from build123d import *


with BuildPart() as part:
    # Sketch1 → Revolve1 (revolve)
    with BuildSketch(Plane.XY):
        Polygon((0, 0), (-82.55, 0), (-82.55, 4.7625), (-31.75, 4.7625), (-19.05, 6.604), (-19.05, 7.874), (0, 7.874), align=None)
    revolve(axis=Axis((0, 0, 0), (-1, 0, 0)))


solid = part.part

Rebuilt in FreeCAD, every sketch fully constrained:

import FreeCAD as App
import Part
import Sketcher
from FreeCAD import Vector
Q = App.Units.Quantity

doc = App.newDocument("Part")
body = doc.addObject("PartDesign::Body", "Body")

# Sketch on XY plane
sketch1 = body.newObject("Sketcher::SketchObject", "Sketch")
sketch1.AttachmentSupport = (doc.getObject("XY_Plane"), [""])
sketch1.MapMode = "FlatFace"
sketch1.addGeometry(Part.LineSegment(Vector(-82.5, 0, 0), Vector(0, 0, 0)), False)
sketch1.addGeometry(Part.LineSegment(Vector(0, 0, 0), Vector(0, 7.9, 0)), False)
sketch1.addGeometry(Part.LineSegment(Vector(0, 7.9, 0), Vector(-19.1, 7.9, 0)), False)
sketch1.addGeometry(Part.LineSegment(Vector(-19.1, 7.9, 0), Vector(-19.1, 6.6, 0)), False)
sketch1.addGeometry(Part.LineSegment(Vector(-19.1, 6.6, 0), Vector(-31.8, 4.8, 0)), False)
sketch1.addGeometry(Part.LineSegment(Vector(-31.8, 4.8, 0), Vector(-82.5, 4.8, 0)), False)
sketch1.addGeometry(Part.LineSegment(Vector(-82.5, 4.8, 0), Vector(-82.5, 0, 0)), False)
sketch1.addConstraint(Sketcher.Constraint("Coincident", 0, 2, 1, 1))
sketch1.addConstraint(Sketcher.Constraint("Coincident", 1, 2, 2, 1))
sketch1.addConstraint(Sketcher.Constraint("Coincident", 2, 2, 3, 1))
sketch1.addConstraint(Sketcher.Constraint("Coincident", 3, 2, 4, 1))
sketch1.addConstraint(Sketcher.Constraint("Coincident", 4, 2, 5, 1))
sketch1.addConstraint(Sketcher.Constraint("Coincident", 5, 2, 6, 1))
sketch1.addConstraint(Sketcher.Constraint("Coincident", 6, 2, 0, 1))
sketch1.addConstraint(Sketcher.Constraint("Horizontal", 0))
sketch1.addConstraint(Sketcher.Constraint("Vertical", 1))
sketch1.addConstraint(Sketcher.Constraint("Horizontal", 2))
sketch1.addConstraint(Sketcher.Constraint("Vertical", 3))
sketch1.addConstraint(Sketcher.Constraint("Horizontal", 5))
sketch1.addConstraint(Sketcher.Constraint("Vertical", 6))
sketch1.addConstraint(Sketcher.Constraint("Coincident", 0, 2, -1, 1))
sketch1.addConstraint(Sketcher.Constraint("DistanceX", 5, 2, 5, 1, Q("2 in")))
sketch1.addConstraint(Sketcher.Constraint("DistanceX", 0, 1, 0, 2, Q("3.25 in")))
sketch1.addConstraint(Sketcher.Constraint("DistanceX", 2, 2, 2, 1, Q("0.75 in")))
sketch1.addConstraint(Sketcher.Constraint("DistanceY", 1, 1, 1, 2, Q("0.31 in")))
sketch1.addConstraint(Sketcher.Constraint("DistanceY", 3, 2, 3, 1, Q("0.05 in")))
sketch1.addConstraint(Sketcher.Constraint("DistanceY", 6, 2, 6, 1, Q("0.1875 in")))
revolution = body.newObject("PartDesign::Revolution", "Revolution")
revolution.Profile = sketch1
revolution.ReferenceAxis = (sketch1, ["H_Axis"])
revolution.Angle = 360

doc.recompute()
